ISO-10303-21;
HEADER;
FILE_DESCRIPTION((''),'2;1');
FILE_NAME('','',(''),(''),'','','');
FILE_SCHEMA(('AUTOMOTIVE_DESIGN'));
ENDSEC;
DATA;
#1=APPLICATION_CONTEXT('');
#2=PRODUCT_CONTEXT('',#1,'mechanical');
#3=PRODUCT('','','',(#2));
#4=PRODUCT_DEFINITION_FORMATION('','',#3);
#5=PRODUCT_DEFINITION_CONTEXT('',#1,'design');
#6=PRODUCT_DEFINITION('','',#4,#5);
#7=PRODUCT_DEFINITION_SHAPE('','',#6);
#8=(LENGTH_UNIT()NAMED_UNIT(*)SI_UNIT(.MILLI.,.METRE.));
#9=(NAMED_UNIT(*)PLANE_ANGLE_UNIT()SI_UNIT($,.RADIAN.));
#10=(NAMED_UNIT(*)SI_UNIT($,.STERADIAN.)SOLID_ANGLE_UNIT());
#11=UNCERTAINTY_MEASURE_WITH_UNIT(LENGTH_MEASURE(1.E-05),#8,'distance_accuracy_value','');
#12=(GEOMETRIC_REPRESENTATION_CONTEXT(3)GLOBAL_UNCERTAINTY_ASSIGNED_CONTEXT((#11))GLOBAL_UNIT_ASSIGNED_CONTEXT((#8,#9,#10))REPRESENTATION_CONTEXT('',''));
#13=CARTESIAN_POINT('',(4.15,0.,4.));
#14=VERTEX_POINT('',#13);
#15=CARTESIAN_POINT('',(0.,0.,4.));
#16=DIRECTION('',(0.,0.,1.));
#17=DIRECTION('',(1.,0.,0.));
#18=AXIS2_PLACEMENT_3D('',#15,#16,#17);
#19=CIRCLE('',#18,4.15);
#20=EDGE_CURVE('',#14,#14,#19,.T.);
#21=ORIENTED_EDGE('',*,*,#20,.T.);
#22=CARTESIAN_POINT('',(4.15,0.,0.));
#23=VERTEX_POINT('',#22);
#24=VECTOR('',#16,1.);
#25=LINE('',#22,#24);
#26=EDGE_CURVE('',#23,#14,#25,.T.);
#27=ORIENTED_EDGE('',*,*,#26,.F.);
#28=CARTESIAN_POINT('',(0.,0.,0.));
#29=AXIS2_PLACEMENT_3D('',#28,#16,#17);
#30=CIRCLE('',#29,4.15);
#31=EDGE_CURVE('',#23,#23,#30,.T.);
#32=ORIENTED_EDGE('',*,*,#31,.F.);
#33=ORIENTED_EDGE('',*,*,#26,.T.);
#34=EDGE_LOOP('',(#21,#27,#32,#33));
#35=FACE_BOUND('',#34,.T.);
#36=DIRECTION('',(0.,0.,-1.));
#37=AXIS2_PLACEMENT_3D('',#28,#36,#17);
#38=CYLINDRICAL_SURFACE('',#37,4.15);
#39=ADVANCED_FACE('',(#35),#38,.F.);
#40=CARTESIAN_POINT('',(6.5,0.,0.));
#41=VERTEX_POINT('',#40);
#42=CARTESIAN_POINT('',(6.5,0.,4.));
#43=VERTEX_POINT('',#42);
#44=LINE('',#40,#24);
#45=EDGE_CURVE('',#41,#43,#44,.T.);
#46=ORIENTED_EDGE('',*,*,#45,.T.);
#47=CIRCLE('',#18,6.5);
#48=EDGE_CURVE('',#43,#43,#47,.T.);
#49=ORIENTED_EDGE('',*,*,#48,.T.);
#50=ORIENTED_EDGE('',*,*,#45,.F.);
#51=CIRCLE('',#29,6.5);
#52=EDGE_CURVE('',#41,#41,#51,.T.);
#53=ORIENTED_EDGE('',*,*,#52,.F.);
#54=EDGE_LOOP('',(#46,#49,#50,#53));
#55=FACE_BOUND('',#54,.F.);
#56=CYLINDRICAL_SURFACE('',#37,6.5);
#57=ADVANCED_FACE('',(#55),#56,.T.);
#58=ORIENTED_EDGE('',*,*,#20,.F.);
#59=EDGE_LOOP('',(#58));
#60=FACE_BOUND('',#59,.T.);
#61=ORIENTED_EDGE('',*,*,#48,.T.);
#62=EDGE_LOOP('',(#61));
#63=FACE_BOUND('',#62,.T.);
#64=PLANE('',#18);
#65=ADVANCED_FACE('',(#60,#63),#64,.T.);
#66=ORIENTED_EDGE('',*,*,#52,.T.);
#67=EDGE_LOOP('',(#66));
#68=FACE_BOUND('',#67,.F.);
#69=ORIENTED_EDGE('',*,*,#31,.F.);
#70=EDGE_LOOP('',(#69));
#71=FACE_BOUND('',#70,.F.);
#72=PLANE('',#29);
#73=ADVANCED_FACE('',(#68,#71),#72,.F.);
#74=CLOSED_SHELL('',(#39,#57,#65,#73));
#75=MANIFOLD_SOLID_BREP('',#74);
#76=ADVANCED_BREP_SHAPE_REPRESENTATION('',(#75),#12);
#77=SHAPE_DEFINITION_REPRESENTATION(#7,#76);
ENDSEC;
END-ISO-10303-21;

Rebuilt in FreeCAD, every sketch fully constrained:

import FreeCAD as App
import Part
import Sketcher

doc = App.newDocument("Part")
params = doc.addObject("Spreadsheet::Sheet", "Params")
for row, (alias, value) in enumerate([
    ("sketch1_diameter", "13 mm"),
    ("sketch1_diameter2", "8.3 mm"),
    ("pad1_length", "4 mm"),
], start=1):
    params.set(f"A{row}", alias)
    params.set(f"B{row}", "=" + value)
    params.setAlias(f"B{row}", alias)

body = doc.addObject("PartDesign::Body", "Body")

sketch1 = body.newObject("Sketcher::SketchObject", "Sketch")
sketch1.AttachmentSupport = (doc.getObject("XY_Plane"), [""])
sketch1.MapMode = "FlatFace"
sketch1.addGeometry(Part.Circle(App.Vector(0, 0, 0), App.Vector(0, 0, 1), 6.5), False)
sketch1.addGeometry(Part.Circle(App.Vector(0, 0, 0), App.Vector(0, 0, 1), 4.2), False)
sketch1.addConstraint(Sketcher.Constraint("Coincident", 0, 3, -1, 1))
sketch1.addConstraint(Sketcher.Constraint("Coincident", 1, 3, -1, 1))
sketch1.addConstraint(Sketcher.Constraint("Diameter", 0, 13.0))
sketch1.addConstraint(Sketcher.Constraint("Diameter", 1, 8.3))
sketch1.setExpression("Constraints[2]", "Params.sketch1_diameter")
sketch1.setExpression("Constraints[3]", "Params.sketch1_diameter2")
pad1 = body.newObject("PartDesign::Pad", "Pad")
pad1.Profile = sketch1
pad1.setExpression("Length", "Params.pad1_length")

doc.recompute()
